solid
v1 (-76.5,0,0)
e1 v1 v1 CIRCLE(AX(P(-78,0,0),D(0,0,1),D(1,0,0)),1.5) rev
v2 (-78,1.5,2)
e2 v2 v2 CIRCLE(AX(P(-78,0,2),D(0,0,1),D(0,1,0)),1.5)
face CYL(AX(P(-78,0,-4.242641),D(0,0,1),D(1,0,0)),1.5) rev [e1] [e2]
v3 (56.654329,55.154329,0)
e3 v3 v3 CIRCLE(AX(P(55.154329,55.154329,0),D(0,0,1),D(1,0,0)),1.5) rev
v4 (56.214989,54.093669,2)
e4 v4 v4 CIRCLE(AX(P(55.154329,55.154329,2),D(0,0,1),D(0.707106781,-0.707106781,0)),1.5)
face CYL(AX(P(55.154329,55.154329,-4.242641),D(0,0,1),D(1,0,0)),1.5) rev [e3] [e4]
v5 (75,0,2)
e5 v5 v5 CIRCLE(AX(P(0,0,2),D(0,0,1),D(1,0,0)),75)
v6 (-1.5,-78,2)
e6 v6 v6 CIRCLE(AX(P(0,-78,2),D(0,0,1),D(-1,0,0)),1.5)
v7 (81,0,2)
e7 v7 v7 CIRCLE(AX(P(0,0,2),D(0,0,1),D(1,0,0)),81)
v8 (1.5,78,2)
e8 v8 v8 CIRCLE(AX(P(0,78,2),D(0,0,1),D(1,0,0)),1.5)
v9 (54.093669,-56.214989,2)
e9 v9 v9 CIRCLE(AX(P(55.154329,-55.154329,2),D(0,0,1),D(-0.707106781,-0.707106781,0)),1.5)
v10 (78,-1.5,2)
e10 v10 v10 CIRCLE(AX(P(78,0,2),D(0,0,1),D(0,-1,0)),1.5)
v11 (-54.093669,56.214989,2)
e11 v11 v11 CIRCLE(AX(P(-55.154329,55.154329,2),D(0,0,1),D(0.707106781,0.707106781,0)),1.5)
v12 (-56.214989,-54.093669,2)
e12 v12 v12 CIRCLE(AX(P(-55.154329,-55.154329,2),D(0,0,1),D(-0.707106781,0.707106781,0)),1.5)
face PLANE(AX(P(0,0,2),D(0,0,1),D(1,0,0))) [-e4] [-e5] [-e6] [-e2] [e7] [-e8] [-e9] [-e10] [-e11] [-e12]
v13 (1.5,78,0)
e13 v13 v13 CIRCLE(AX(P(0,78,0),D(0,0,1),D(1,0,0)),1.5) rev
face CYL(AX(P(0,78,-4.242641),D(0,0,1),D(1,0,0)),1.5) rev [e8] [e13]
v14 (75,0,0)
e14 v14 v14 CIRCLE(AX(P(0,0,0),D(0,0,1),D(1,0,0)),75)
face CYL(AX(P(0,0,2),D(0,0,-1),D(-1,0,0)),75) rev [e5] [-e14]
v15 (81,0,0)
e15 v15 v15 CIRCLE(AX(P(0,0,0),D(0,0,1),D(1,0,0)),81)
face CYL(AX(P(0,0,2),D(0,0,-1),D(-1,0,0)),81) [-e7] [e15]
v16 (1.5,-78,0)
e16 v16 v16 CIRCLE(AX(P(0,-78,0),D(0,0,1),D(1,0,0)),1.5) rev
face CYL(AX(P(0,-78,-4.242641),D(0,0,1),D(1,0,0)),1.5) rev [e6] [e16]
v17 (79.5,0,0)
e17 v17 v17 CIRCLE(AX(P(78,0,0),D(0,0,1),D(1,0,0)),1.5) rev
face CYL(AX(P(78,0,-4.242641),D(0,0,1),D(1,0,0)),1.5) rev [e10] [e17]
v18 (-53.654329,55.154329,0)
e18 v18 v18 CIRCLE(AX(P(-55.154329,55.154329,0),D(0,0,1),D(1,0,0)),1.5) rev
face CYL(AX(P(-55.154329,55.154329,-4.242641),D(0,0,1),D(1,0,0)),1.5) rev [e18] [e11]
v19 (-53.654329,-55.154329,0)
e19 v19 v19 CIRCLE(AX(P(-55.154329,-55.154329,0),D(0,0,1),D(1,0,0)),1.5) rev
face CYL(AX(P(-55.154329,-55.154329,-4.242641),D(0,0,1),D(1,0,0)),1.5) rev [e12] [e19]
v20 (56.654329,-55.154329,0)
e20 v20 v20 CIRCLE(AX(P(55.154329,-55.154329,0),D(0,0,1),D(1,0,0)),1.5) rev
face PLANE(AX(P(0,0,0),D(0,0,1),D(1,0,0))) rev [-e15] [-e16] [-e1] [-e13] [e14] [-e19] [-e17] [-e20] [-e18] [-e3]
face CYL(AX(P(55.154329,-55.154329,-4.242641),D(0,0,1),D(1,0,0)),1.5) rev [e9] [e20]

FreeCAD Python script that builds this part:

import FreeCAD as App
import Part
import Sketcher

V = App.Vector

doc = App.newDocument("Part")
params = doc.addObject("Spreadsheet::Sheet", "Params")
for row, (alias, value) in enumerate([
    ("sketch1_diameter", "162 mm"),
    ("sketch1_diameter2", "150 mm"),
    ("pad1_length", "2 mm"),
    ("sketch2_diameter", "3 mm"),
    ("pocket1_length", "2 mm"),
], start=1):
    params.set(f"A{row}", alias)
    params.set(f"B{row}", "=" + value)
    params.setAlias(f"B{row}", alias)

body = doc.addObject("PartDesign::Body", "Body")

sketch1 = doc.addObject("Sketcher::SketchObject", "Sketch")
body.addObject(sketch1)
sketch1.AttachmentSupport = (doc.XY_Plane, [""])
sketch1.MapMode = "FlatFace"
sketch1.addGeometry(Part.Circle(V(0, 0, 0), V(0, 0, 1), 81), False)
sketch1.addGeometry(Part.Circle(V(0, 0, 0), V(0, 0, 1), 75), False)
sketch1.addConstraint(Sketcher.Constraint("Coincident", 0, 3, -1, 1))
sketch1.addConstraint(Sketcher.Constraint("Coincident", 1, 3, -1, 1))
sketch1.addConstraint(Sketcher.Constraint("Diameter", 0, 162.0))
sketch1.addConstraint(Sketcher.Constraint("Diameter", 1, 150.0))
sketch1.setExpression("Constraints[2]", "Params.sketch1_diameter")
sketch1.setExpression("Constraints[3]", "Params.sketch1_diameter2")
pad1 = doc.addObject("PartDesign::Pad", "Pad")
body.addObject(pad1)
pad1.Profile = sketch1
pad1.setExpression("Length", "Params.pad1_length")

sketch2 = doc.addObject("Sketcher::SketchObject", "Sketch001")
body.addObject(sketch2)
sketch2.AttachmentSupport = (doc.XY_Plane, [""])
sketch2.MapMode = "FlatFace"
sketch2.AttachmentOffset = App.Placement(V(0, 0, 2), App.Rotation())
sketch2.addGeometry(Part.Circle(V(0, 78, 0), V(0, 0, 1), 1.5), False)
sketch2.addConstraint(Sketcher.Constraint("PointOnObject", 0, 3, -2))
sketch2.addConstraint(Sketcher.Constraint("Diameter", 0, 3.0))
sketch2.addConstraint(Sketcher.Constraint("DistanceY", -1, 1, 0, 3, 78.0))
sketch2.setExpression("Constraints[1]", "Params.sketch2_diameter")
pocket1 = doc.addObject("PartDesign::Pocket", "Pocket")
body.addObject(pocket1)
pocket1.Profile = sketch2
pocket1.setExpression("Length", "Params.pocket1_length")
doc.recompute()

polarpattern = doc.addObject("PartDesign::PolarPattern", "PolarPattern")
body.addObject(polarpattern)
polarpattern.Originals = [pocket1]
polarpattern.Axis = (doc.Z_Axis, [""])
polarpattern.Angle = 360
polarpattern.Occurrences = 8
body.Tip = polarpattern

doc.recompute()
